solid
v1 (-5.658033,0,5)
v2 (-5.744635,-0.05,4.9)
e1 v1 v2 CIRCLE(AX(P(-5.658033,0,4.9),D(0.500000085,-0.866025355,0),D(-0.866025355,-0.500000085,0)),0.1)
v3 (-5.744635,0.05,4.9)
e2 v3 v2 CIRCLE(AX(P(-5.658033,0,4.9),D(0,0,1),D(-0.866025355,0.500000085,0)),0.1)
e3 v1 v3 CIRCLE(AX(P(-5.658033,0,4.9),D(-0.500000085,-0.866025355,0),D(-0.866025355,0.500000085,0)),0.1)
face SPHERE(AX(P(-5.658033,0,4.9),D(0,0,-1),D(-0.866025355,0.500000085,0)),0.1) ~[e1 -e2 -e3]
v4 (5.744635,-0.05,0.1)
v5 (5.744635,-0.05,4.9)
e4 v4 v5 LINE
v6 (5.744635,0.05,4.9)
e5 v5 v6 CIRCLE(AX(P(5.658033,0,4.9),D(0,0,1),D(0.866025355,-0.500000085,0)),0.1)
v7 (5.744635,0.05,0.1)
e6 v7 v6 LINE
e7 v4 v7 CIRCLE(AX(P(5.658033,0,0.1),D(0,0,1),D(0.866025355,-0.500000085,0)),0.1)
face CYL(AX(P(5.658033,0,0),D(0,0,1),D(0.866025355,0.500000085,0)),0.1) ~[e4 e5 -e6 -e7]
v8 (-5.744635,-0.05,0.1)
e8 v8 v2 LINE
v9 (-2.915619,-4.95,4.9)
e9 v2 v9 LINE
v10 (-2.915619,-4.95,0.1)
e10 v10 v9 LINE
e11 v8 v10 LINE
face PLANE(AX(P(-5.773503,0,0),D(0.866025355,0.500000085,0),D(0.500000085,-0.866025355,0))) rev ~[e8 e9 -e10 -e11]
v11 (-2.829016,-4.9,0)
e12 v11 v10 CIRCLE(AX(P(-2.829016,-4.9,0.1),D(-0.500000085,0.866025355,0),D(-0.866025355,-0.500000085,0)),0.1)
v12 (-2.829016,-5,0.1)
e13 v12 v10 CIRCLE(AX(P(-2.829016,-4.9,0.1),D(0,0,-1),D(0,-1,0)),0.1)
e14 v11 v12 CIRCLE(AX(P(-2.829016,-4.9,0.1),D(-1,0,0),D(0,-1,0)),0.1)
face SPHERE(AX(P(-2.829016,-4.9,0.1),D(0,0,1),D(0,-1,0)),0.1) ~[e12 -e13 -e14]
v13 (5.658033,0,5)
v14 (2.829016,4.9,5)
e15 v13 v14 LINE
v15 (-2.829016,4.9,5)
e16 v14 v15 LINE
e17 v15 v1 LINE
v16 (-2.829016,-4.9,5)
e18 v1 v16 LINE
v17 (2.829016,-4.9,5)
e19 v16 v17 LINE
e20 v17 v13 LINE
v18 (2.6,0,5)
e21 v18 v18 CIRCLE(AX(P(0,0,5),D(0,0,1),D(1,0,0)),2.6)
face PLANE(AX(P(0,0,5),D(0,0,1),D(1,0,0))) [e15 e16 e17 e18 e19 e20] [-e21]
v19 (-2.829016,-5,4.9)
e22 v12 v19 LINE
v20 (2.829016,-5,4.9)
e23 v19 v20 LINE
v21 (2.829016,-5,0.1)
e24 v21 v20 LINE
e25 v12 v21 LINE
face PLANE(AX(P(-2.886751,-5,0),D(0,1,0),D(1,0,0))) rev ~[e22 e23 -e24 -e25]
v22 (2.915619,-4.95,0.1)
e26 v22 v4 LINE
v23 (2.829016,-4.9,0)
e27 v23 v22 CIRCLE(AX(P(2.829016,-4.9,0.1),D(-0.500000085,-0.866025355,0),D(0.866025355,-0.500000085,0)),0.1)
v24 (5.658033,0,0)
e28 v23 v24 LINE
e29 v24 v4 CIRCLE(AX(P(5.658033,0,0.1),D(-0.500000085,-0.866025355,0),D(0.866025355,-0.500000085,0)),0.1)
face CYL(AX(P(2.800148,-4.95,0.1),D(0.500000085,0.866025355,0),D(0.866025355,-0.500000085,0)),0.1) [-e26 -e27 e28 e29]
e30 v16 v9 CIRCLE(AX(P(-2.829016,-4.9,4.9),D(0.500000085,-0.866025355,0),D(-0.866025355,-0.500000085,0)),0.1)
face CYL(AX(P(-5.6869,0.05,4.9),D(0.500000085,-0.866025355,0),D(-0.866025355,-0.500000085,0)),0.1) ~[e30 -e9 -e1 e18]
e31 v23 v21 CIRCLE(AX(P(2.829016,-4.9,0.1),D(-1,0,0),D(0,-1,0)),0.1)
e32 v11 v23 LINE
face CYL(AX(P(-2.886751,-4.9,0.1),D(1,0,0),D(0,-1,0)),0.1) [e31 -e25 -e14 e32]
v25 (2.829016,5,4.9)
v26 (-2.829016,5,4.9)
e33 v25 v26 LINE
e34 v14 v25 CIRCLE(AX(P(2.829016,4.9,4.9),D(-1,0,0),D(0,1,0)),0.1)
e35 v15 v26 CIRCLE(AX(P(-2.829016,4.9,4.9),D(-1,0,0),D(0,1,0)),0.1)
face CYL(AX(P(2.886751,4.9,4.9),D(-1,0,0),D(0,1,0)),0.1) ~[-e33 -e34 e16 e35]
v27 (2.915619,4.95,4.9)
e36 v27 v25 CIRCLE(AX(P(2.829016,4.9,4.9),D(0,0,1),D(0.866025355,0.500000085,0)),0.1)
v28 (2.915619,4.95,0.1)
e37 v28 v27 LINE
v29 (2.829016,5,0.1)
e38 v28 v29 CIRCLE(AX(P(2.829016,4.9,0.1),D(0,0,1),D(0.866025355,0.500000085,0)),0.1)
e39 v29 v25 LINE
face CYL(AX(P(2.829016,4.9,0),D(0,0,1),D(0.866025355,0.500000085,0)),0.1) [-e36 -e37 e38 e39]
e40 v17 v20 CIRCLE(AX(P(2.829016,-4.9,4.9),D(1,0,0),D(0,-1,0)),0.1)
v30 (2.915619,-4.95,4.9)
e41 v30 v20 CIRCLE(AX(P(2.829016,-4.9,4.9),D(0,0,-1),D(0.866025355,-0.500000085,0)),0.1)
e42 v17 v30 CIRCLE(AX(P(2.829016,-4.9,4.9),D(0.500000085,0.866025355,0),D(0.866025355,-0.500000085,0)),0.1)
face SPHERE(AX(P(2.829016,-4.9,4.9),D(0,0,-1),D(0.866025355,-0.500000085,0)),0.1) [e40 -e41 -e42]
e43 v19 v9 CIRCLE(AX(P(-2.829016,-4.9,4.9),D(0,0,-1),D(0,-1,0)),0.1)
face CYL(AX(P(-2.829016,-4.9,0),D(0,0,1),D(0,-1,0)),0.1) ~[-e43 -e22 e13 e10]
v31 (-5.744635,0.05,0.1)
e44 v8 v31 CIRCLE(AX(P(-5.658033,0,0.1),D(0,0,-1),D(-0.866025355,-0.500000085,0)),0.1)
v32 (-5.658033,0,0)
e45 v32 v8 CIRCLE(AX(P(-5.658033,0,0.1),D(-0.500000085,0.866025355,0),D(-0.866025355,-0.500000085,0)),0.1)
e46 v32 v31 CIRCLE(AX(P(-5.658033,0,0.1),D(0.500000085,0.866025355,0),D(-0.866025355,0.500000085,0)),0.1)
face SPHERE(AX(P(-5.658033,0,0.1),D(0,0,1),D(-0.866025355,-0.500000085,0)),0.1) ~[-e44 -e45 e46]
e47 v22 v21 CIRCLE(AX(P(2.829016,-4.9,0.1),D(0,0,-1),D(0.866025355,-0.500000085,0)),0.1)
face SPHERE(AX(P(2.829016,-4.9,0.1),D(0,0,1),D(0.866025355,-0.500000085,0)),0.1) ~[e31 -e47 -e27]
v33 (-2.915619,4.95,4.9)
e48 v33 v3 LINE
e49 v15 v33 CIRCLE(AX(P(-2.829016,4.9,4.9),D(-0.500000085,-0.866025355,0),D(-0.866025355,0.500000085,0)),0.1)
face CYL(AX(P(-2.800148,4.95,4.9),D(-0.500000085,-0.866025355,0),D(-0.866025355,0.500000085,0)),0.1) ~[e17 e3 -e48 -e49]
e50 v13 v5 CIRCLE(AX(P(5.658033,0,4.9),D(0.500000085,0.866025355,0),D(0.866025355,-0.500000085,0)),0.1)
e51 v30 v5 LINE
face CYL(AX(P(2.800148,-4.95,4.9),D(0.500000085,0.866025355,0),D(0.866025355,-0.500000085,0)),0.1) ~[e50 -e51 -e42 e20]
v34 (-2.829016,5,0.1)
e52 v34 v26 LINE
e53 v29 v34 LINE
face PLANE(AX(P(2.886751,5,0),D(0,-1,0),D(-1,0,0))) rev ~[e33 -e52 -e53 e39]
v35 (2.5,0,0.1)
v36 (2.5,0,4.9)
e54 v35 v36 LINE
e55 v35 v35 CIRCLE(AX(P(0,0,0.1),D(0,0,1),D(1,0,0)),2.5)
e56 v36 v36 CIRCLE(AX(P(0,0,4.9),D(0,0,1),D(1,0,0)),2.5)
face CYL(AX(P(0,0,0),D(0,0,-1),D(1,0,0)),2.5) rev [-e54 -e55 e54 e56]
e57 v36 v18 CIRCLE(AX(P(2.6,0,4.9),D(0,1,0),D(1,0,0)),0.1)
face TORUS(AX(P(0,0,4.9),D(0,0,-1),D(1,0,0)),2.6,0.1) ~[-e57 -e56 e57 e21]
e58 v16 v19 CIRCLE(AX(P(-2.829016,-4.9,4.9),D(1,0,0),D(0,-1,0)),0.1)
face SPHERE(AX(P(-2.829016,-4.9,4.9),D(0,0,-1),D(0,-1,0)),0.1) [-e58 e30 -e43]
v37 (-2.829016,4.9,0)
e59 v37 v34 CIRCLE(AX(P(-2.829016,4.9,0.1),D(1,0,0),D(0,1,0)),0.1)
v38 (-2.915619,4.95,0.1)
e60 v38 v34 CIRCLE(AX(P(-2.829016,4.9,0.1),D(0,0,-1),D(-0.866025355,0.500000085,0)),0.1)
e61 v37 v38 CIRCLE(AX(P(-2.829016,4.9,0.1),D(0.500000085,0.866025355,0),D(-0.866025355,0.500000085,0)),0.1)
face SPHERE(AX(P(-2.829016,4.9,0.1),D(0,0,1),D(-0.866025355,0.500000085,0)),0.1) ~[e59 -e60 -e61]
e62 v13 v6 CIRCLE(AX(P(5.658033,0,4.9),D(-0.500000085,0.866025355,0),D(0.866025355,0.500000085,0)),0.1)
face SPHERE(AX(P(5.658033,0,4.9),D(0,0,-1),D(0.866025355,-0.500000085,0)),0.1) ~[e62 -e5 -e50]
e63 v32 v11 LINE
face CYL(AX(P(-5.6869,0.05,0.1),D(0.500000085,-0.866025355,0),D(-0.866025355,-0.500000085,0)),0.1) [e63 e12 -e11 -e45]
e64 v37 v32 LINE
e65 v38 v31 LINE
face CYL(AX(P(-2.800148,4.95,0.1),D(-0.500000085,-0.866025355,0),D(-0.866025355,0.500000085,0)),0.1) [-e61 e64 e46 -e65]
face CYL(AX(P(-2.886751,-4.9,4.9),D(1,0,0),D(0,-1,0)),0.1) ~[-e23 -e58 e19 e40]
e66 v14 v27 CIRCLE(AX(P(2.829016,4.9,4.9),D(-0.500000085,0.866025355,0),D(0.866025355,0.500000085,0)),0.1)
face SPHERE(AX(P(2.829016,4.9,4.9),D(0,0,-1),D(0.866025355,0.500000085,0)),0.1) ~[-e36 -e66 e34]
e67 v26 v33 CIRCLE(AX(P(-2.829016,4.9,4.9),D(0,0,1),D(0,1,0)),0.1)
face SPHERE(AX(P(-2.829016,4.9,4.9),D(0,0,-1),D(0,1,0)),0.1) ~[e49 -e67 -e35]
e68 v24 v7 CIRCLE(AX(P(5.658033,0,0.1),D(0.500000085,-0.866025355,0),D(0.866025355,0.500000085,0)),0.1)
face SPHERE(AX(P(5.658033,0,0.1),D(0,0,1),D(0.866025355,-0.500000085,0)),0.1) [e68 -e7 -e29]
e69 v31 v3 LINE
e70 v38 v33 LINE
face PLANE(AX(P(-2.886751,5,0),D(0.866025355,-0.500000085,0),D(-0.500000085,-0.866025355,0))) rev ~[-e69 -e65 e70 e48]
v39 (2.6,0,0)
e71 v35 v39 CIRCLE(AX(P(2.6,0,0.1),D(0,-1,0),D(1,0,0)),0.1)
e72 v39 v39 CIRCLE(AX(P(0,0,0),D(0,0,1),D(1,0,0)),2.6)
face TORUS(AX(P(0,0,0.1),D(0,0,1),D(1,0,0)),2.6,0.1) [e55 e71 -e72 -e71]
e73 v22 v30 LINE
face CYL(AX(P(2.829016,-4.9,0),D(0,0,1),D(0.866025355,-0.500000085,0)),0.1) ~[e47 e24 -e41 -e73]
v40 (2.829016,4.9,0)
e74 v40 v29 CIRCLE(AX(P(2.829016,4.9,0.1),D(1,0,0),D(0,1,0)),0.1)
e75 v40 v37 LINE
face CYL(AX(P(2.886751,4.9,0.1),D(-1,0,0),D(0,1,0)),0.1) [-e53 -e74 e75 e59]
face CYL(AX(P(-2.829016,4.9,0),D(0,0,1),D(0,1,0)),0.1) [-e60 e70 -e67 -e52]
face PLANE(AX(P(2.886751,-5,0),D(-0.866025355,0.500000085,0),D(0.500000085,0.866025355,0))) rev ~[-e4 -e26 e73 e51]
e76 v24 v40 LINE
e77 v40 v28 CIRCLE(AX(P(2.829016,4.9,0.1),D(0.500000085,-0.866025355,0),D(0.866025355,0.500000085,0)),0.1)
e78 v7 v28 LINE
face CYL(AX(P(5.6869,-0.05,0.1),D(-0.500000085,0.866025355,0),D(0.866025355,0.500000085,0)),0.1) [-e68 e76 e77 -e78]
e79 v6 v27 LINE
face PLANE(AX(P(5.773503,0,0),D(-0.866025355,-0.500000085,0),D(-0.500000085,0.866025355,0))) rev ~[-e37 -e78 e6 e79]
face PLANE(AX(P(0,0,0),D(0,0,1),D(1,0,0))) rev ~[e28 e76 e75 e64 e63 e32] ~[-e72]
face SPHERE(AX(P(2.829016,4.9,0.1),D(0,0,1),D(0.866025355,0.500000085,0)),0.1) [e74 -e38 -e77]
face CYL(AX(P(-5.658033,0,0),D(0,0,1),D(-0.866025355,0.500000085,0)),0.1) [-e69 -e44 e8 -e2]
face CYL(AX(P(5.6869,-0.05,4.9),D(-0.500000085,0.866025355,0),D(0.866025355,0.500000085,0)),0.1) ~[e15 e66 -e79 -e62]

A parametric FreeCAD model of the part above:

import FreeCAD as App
import Part
import Sketcher
Q = App.Units.Quantity

doc = App.newDocument("Part")
body = doc.addObject("PartDesign::Body", "Body")

# Sketch on XY plane
sketch1 = doc.addObject("Sketcher::SketchObject", "Sketch")
body.addObject(sketch1)
sketch1.AttachmentSupport = (doc.XY_Plane, [""])
sketch1.MapMode = "FlatFace"
sketch1.addGeometry([
    Part.LineSegment(App.Vector(5.773503, 0, 0), App.Vector(2.886751, 5, 0)),  # 0
    Part.LineSegment(App.Vector(2.886751, 5, 0), App.Vector(-2.886751, 5, 0)),  # 1
    Part.LineSegment(App.Vector(-2.886751, 5, 0), App.Vector(-5.773503, 0, 0)),  # 2
    Part.LineSegment(App.Vector(-5.773503, 0, 0), App.Vector(-2.886751, -5, 0)),  # 3
    Part.LineSegment(App.Vector(-2.886751, -5, 0), App.Vector(2.886751, -5, 0)),  # 4
    Part.LineSegment(App.Vector(2.886751, -5, 0), App.Vector(5.773503, 0, 0)),  # 5
    Part.Circle(App.Vector(0, 0, 0), App.Vector(0, 0, 1), 2.5),  # 6
], False)
sketch1.addConstraint([
    Sketcher.Constraint("Coincident", 0, 2, 1, 1),
    Sketcher.Constraint("Coincident", 1, 2, 2, 1),
    Sketcher.Constraint("Coincident", 2, 2, 3, 1),
    Sketcher.Constraint("Coincident", 3, 2, 4, 1),
    Sketcher.Constraint("Coincident", 4, 2, 5, 1),
    Sketcher.Constraint("Coincident", 5, 2, 0, 1),
    Sketcher.Constraint("Horizontal", 1),
    Sketcher.Constraint("Horizontal", 4),
    Sketcher.Constraint("Coincident", 6, 3, -1, 1),
    Sketcher.Constraint("Symmetric", 0, 2, 3, 2, -1, 1),
    Sketcher.Constraint("Symmetric", 2, 2, 5, 2, -1, 1),
    Sketcher.Constraint("PointOnObject", 2, 2, -1),
    Sketcher.Constraint("Parallel", 2, 5),
    Sketcher.Constraint("Vertical", 1, 2, 3, 2),
    Sketcher.Constraint("Diameter", 6, Q("5 mm")),
    Sketcher.Constraint("Angle", 0, Q("120.000006 deg")),
    Sketcher.Constraint("DistanceY", -1, 1, 0, 2, Q("5 mm")),
    Sketcher.Constraint("DistanceX", 1, 2, 1, 1, Q("5.773502 mm")),
])
pad1 = doc.addObject("PartDesign::Pad", "Pad")
body.addObject(pad1)
pad1.Profile = sketch1
pad1.Length = 5
doc.recompute()

fillet = doc.addObject("PartDesign::Fillet", "Fillet")
body.addObject(fillet)
fillet.Base = (pad1, ["Edge1"])
fillet.UseAllEdges = True
fillet.Radius = 0.1

doc.recompute()
